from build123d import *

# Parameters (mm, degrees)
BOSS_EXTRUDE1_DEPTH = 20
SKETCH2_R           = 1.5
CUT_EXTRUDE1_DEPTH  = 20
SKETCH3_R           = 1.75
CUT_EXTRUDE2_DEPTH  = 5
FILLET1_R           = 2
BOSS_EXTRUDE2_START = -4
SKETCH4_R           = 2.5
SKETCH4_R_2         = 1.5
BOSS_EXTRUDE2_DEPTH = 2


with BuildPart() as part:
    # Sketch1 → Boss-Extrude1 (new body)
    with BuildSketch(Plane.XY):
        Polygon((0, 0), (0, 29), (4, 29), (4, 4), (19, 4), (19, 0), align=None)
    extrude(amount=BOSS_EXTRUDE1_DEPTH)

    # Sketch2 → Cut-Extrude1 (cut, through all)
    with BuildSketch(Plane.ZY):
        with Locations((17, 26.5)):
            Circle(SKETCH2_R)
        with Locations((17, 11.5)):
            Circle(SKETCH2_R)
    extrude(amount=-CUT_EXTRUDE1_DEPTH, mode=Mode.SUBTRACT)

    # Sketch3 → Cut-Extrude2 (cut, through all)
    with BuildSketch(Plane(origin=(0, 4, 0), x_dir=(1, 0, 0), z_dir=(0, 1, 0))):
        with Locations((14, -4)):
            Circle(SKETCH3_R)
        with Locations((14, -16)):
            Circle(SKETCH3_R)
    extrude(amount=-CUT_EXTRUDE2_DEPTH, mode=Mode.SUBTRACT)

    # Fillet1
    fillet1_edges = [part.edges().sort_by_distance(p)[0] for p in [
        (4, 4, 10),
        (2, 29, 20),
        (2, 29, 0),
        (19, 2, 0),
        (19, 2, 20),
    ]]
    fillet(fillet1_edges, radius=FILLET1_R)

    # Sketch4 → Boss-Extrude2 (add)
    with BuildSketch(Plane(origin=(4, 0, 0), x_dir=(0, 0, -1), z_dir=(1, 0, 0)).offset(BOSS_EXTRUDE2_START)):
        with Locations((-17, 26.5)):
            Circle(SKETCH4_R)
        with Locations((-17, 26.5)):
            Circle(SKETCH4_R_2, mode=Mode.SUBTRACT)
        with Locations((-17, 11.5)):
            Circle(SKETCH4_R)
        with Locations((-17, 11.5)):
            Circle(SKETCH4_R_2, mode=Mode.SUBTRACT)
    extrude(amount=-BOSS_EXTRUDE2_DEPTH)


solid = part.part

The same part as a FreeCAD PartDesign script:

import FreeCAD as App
import Part
import Sketcher
from FreeCAD import Vector


def edges_at(feature, points):
    """Names of the edges that pass closest to the given points."""
    edges = feature.Shape.Edges
    near = lambda p: min(range(len(edges)), key=lambda i: edges[i].distToShape(Part.Vertex(*p))[0])
    return sorted({f"Edge{near(p) + 1}" for p in points})


def add_polygon(sketch, points):
    """Adds a closed chain of lines whose ends are joined by coincident constraints."""
    first, n = sketch.GeometryCount, len(points)
    for a, b in zip(points, points[1:] + points[:1]):
        sketch.addGeometry(Part.LineSegment(App.Vector(*a, 0), App.Vector(*b, 0)), False)
    for i in range(n):
        sketch.addConstraint(Sketcher.Constraint("Coincident", first + i, 2, first + (i + 1) % n, 1))

doc = App.newDocument("Part")
params = doc.addObject("Spreadsheet::Sheet", "Params")
for row, (alias, value) in enumerate([
    ("sketch1_width", "19 mm"),
    ("sketch1_width2", "15 mm"),
    ("sketch1_height", "29 mm"),
    ("pad1_length", "20 mm"),
    ("sketch2_diameter", "3 mm"),
    ("sketch3_diameter", "3.5 mm"),
    ("fillet_radius", "2 mm"),
    ("sketch4_diameter", "5 mm"),
    ("sketch4_diameter2", "3 mm"),
    ("pad2_length", "2 mm"),
], start=1):
    params.set(f"A{row}", alias)
    params.set(f"B{row}", "=" + value)
    params.setAlias(f"B{row}", alias)

body = doc.addObject("PartDesign::Body", "Body")

# Sketch on XY plane
sketch1 = body.newObject("Sketcher::SketchObject", "Sketch")
sketch1.AttachmentSupport = (doc.getObject("XY_Plane"), [""])
sketch1.MapMode = "FlatFace"
add_polygon(sketch1, [(0, 29), (0, 0), (19, 0), (19, 4), (4, 4), (4, 29)])  # lines 0-5
sketch1.addConstraint([
    Sketcher.Constraint("Vertical", 0),
    Sketcher.Constraint("Horizontal", 1),
    Sketcher.Constraint("Vertical", 2),
    Sketcher.Constraint("Horizontal", 3),
    Sketcher.Constraint("Vertical", 4),
    Sketcher.Constraint("Horizontal", 5),
    Sketcher.Constraint("Coincident", 0, 2, -1, 1),
    Sketcher.Constraint("Equal", 5, 2),
    Sketcher.Constraint("DistanceX", 1, 1, 1, 2, 19.0),
    Sketcher.Constraint("DistanceX", 3, 2, 3, 1, 15.0),
    Sketcher.Constraint("DistanceY", 0, 2, 0, 1, 29.0),
])
sketch1.setExpression("Constraints[14]", "Params.sketch1_width")
sketch1.setExpression("Constraints[15]", "Params.sketch1_width2")
sketch1.setExpression("Constraints[16]", "Params.sketch1_height")
pad1 = body.newObject("PartDesign::Pad", "Pad")
pad1.Profile = sketch1
pad1.setExpression("Length", "Params.pad1_length")

# Sketch on YZ plane
sketch2 = body.newObject("Sketcher::SketchObject", "Sketch001")
sketch2.AttachmentSupport = (doc.getObject("YZ_Plane"), [""])
sketch2.MapMode = "FlatFace"
sketch2.addGeometry([
    Part.Circle(Vector(26.5, 17, 0), Vector(0, 0, 1), 1.5),
    Part.Circle(Vector(11.5, 17, 0), Vector(0, 0, 1), 1.5),
], False)
sketch2.addConstraint([
    Sketcher.Constraint("Equal", 0, 1),
    Sketcher.Constraint("Horizontal", 0, 3, 1, 3),
    Sketcher.Constraint("Diameter", 0, 3.0),
    Sketcher.Constraint("DistanceY", -1, 1, 0, 3, 17.0),
    Sketcher.Constraint("DistanceX", 1, 3, 0, 3, 15.0),
    Sketcher.Constraint("DistanceX", -1, 1, 0, 3, 26.5),
])
sketch2.setExpression("Constraints[2]", "Params.sketch2_diameter")
pocket1 = body.newObject("PartDesign::Pocket", "Pocket")
pocket1.Profile = sketch2
pocket1.Type = "ThroughAll"
pocket1.Reversed = True

# Sketch on XZ plane
sketch3 = body.newObject("Sketcher::SketchObject", "Sketch002")
sketch3.AttachmentSupport = (doc.getObject("XZ_Plane"), [""])
sketch3.MapMode = "FlatFace"
sketch3.AttachmentOffset = App.Placement(Vector(0, 0, -4), App.Rotation())
sketch3.addGeometry([
    Part.Circle(Vector(14, 4, 0), Vector(0, 0, 1), 1.8),
    Part.Circle(Vector(14, 16, 0), Vector(0, 0, 1), 1.8),
], False)
sketch3.addConstraint([
    Sketcher.Constraint("Equal", 0, 1),
    Sketcher.Constraint("Vertical", 0, 3, 1, 3),
    Sketcher.Constraint("Diameter", 0, 3.5),
    Sketcher.Constraint("DistanceX", -1, 1, 0, 3, 14.0),
    Sketcher.Constraint("DistanceY", -1, 1, 0, 3, 4.0),
    Sketcher.Constraint("DistanceY", -1, 1, 1, 3, 16.0),
])
sketch3.setExpression("Constraints[2]", "Params.sketch3_diameter")
pocket2 = body.newObject("PartDesign::Pocket", "Pocket001")
pocket2.Profile = sketch3
pocket2.Type = "ThroughAll"
pocket2.Reversed = True
doc.recompute()

fillet = body.newObject("PartDesign::Fillet", "Fillet")
fillet.Base = (pocket2, edges_at(pocket2, [
    (4, 4, 10),
    (2, 29, 20),
    (2, 29, 0),
    (19, 2, 0),
    (19, 2, 20),
]))
fillet.setExpression("Radius", "Params.fillet_radius")

# Sketch on YZ plane
sketch4 = body.newObject("Sketcher::SketchObject", "Sketch003")
sketch4.AttachmentSupport = (doc.getObject("YZ_Plane"), [""])
sketch4.MapMode = "FlatFace"
sketch4.addGeometry([
    Part.Circle(Vector(26.5, 17, 0), Vector(0, 0, 1), 2.5),
    Part.Circle(Vector(26.5, 17, 0), Vector(0, 0, 1), 1.5),
    Part.Circle(Vector(11.5, 17, 0), Vector(0, 0, 1), 2.5),
    Part.Circle(Vector(11.5, 17, 0), Vector(0, 0, 1), 1.5),
], False)
sketch4.addConstraint([
    Sketcher.Constraint("Coincident", 1, 3, 0, 3),
    Sketcher.Constraint("Coincident", 3, 3, 2, 3),
    Sketcher.Constraint("Equal", 0, 2),
    Sketcher.Constraint("Equal", 1, 3),
    Sketcher.Constraint("Horizontal", 1, 3, 2, 3),
    Sketcher.Constraint("Diameter", 0, 5.0),
    Sketcher.Constraint("Diameter", 1, 3.0),
    Sketcher.Constraint("DistanceY", -1, 1, 0, 3, 17.0),
    Sketcher.Constraint("DistanceX", 2, 3, 0, 3, 15.0),
    Sketcher.Constraint("DistanceX", -1, 1, 0, 3, 26.5),
])
sketch4.setExpression("Constraints[5]", "Params.sketch4_diameter")
sketch4.setExpression("Constraints[6]", "Params.sketch4_diameter2")
pad2 = body.newObject("PartDesign::Pad", "Pad001")
pad2.Profile = sketch4
pad2.setExpression("Length", "Params.pad2_length")
pad2.Reversed = True

doc.recompute()
